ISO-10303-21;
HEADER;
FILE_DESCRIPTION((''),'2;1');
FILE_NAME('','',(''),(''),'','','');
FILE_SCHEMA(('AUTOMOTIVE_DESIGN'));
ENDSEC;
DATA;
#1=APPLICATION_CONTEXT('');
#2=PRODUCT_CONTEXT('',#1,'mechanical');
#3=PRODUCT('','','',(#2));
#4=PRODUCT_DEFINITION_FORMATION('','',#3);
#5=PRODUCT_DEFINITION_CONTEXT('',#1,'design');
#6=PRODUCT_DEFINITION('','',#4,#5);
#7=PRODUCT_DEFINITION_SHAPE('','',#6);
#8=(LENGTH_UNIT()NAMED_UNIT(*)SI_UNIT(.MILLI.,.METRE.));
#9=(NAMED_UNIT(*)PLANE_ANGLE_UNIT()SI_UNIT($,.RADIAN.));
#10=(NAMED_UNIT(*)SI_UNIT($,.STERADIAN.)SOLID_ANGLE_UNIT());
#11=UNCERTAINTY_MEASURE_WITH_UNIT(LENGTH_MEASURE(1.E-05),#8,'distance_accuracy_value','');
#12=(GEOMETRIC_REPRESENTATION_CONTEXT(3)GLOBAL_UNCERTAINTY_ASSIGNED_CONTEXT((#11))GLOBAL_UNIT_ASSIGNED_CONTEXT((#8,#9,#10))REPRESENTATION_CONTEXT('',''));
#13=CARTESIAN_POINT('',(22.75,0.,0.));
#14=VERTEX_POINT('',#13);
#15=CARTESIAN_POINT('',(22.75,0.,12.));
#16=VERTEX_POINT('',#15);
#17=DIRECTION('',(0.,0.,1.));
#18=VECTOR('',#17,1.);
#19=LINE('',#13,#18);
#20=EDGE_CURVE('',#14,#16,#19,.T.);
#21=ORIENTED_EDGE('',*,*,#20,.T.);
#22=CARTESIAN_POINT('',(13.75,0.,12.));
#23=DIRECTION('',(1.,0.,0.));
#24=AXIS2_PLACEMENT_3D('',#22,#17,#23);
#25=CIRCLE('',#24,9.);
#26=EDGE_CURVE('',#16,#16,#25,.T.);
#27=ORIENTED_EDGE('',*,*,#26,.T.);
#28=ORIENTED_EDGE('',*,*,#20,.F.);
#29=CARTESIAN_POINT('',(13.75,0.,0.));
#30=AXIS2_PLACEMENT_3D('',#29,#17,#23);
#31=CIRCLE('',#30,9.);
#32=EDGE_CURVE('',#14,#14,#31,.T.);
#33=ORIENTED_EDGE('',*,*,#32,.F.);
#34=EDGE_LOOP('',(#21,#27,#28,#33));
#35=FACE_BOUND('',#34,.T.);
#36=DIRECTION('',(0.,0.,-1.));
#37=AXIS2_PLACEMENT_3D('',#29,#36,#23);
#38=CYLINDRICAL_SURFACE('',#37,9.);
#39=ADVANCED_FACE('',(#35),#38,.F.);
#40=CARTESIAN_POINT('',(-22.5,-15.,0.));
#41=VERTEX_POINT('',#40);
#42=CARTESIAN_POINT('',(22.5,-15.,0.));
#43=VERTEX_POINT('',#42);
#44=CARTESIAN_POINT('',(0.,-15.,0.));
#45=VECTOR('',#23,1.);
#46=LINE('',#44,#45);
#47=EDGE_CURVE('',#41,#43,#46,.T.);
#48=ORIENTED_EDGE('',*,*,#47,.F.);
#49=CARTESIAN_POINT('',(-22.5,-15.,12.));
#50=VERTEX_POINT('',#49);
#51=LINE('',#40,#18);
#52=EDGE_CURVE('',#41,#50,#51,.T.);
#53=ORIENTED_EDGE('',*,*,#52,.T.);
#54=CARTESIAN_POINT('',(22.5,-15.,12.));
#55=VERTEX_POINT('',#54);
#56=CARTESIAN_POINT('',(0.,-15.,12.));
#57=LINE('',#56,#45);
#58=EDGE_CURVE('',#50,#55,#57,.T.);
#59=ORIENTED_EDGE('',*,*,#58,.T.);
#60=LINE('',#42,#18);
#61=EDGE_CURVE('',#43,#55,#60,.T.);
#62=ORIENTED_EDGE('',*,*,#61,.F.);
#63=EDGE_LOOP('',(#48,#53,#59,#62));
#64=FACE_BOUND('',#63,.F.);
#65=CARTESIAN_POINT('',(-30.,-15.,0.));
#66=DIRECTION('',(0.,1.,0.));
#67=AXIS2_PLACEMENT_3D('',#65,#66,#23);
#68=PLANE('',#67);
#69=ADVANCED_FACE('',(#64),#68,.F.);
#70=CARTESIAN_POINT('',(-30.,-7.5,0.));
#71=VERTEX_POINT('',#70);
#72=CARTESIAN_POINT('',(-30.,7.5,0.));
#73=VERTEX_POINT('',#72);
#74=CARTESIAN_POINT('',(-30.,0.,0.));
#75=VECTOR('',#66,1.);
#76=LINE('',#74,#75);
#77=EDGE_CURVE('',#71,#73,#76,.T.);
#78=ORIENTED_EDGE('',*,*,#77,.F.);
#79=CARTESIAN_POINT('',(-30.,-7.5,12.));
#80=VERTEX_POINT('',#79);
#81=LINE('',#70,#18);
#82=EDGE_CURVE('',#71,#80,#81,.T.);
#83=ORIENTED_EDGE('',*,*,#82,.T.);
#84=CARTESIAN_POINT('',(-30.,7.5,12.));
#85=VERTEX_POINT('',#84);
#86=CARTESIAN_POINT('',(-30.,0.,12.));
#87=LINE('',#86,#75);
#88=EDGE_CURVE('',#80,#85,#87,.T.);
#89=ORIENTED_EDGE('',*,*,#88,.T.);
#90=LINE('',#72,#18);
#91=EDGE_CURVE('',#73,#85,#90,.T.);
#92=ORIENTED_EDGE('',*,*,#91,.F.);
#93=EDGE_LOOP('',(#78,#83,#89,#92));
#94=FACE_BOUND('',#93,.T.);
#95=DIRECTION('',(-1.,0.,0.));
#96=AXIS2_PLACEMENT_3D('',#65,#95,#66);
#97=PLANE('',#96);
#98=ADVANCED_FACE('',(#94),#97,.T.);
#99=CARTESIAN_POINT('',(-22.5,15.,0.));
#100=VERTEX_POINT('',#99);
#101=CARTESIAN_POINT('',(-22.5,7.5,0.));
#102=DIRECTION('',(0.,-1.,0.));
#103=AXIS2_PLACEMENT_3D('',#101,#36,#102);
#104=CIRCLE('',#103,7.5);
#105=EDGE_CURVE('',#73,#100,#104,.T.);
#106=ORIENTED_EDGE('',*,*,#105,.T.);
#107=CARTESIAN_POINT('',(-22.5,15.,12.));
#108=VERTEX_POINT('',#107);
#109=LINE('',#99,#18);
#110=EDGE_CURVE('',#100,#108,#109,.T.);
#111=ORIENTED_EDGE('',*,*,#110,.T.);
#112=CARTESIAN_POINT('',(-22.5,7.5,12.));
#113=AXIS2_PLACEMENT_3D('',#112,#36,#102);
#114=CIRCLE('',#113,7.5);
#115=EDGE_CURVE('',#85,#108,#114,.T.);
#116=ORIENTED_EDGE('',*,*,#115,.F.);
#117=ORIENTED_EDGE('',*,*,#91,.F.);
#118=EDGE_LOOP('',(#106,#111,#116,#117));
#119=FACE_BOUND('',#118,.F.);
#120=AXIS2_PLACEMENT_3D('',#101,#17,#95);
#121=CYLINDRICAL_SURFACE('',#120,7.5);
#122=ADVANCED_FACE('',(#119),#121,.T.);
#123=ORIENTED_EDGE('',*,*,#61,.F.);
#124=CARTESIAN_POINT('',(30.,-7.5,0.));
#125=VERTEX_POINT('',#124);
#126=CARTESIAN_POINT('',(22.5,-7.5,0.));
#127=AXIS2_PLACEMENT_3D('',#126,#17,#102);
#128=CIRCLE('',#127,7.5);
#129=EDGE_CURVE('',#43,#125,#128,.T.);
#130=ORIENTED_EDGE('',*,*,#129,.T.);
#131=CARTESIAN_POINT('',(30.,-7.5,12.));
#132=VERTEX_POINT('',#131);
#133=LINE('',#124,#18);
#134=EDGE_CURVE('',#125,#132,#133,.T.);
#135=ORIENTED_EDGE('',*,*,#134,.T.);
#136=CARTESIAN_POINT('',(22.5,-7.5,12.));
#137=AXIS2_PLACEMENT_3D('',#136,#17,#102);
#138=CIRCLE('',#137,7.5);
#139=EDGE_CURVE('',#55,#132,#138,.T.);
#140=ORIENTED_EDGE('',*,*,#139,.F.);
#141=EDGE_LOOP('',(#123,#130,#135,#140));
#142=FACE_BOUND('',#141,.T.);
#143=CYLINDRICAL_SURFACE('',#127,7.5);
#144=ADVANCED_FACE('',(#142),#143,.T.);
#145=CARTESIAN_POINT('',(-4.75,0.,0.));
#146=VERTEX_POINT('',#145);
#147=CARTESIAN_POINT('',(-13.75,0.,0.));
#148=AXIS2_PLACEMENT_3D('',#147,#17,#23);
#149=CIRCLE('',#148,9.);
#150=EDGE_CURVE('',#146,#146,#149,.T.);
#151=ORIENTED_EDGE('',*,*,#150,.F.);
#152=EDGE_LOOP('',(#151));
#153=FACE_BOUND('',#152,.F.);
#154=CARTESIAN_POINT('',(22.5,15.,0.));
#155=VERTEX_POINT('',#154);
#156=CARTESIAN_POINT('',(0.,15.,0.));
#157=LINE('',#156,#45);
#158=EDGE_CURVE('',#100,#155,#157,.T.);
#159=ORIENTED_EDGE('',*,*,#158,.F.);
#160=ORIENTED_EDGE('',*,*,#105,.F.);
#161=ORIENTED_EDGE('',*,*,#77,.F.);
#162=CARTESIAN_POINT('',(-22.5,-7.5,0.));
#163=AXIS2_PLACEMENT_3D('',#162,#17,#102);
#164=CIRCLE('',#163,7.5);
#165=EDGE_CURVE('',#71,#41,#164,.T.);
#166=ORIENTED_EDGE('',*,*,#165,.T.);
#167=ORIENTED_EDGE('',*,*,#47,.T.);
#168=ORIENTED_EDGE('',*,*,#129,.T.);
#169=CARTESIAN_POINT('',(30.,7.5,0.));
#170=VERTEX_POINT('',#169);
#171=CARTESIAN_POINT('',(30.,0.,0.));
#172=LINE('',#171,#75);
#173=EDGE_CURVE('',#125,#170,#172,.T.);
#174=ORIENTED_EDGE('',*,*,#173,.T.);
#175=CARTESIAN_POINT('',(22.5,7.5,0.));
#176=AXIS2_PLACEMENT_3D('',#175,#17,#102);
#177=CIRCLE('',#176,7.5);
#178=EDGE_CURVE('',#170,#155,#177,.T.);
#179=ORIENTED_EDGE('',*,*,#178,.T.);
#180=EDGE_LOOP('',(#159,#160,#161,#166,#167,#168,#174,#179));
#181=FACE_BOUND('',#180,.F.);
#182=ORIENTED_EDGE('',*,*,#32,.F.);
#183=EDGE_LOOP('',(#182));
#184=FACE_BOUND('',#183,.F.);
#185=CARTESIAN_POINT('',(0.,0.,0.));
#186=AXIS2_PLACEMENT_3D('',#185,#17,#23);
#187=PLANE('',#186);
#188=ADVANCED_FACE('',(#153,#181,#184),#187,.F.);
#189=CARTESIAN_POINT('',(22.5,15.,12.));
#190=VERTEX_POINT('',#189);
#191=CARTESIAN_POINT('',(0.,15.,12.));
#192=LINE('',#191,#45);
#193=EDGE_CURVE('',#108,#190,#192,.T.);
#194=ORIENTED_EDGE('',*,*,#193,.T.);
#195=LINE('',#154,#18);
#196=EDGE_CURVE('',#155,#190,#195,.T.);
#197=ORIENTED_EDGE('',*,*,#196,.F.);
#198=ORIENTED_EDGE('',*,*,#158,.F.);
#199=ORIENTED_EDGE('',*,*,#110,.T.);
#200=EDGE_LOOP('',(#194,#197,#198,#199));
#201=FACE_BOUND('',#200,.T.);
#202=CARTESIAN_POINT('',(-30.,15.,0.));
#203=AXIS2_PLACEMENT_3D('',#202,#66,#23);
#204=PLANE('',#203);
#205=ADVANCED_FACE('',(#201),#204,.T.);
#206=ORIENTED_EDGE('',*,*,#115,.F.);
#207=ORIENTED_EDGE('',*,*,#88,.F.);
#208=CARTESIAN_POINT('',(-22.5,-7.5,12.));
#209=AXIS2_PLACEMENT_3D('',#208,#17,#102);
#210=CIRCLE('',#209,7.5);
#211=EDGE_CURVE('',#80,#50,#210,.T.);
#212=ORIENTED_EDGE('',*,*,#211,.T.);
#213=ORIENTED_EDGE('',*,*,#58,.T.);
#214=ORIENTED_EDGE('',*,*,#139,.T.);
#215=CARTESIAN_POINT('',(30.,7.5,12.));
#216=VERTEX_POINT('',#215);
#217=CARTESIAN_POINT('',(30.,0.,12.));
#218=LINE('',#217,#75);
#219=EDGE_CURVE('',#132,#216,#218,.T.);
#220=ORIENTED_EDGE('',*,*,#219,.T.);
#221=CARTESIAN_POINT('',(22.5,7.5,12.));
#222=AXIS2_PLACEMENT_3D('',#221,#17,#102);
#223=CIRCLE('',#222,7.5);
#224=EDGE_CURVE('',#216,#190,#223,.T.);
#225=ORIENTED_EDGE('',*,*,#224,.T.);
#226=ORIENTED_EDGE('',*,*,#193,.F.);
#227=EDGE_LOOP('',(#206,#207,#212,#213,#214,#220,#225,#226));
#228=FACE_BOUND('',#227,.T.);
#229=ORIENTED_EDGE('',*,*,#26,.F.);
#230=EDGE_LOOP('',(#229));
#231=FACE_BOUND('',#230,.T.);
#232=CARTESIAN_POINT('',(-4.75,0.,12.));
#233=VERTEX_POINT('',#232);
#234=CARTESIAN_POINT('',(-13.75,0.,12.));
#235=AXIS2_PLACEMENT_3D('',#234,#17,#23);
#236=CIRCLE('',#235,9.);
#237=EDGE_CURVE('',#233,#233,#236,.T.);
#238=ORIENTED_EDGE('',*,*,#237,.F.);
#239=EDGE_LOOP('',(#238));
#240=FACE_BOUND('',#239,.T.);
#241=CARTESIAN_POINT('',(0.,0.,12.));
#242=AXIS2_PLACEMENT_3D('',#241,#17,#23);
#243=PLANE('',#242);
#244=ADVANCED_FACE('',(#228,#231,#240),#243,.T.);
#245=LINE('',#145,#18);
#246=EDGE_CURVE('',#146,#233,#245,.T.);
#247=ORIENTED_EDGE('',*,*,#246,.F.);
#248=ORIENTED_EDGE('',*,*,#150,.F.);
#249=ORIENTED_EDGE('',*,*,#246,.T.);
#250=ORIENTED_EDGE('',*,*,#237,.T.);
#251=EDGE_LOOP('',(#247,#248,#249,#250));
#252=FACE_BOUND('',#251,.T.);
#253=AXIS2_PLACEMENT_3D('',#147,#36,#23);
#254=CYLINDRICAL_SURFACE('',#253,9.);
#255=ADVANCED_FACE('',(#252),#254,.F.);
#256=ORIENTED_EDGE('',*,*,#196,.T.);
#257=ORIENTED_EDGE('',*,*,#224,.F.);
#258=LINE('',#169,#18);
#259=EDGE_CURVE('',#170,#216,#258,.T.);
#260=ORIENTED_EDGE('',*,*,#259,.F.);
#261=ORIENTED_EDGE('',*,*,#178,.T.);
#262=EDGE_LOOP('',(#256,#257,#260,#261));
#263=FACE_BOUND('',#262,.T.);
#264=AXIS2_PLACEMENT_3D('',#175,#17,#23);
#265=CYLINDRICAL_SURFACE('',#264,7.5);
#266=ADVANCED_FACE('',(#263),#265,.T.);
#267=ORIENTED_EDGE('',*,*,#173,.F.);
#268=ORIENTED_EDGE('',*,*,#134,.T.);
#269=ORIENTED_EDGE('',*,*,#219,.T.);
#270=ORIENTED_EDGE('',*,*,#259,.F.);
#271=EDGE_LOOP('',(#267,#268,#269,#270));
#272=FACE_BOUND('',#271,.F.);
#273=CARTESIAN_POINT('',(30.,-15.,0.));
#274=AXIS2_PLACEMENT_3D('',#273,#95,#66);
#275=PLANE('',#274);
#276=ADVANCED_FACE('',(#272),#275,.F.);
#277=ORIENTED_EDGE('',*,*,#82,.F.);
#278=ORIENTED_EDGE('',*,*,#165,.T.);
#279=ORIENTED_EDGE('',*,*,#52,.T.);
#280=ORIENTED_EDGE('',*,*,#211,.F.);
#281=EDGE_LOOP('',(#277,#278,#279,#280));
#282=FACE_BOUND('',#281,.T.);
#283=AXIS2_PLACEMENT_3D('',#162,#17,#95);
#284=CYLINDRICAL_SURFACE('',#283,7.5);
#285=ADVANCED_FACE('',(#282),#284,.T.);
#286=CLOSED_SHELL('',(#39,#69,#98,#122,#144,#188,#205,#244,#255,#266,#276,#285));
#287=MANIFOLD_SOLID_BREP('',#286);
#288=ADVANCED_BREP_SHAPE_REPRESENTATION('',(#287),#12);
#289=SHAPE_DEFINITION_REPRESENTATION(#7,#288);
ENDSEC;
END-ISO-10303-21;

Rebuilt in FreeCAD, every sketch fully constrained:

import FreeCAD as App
import Part
import Sketcher
Q = App.Units.Quantity


def edges_at(feature, points):
    """Names of the edges that pass closest to the given points."""
    edges = feature.Shape.Edges
    near = lambda p: min(range(len(edges)), key=lambda i: edges[i].distToShape(Part.Vertex(*p))[0])
    return sorted({f"Edge{near(p) + 1}" for p in points})

doc = App.newDocument("Part")
body = doc.addObject("PartDesign::Body", "Body")

sketch1 = body.newObject("Sketcher::SketchObject", "Sketch")
sketch1.AttachmentSupport = (doc.getObject("XY_Plane"), [""])
sketch1.MapMode = "FlatFace"
sketch1.addGeometry([
    Part.LineSegment(App.Vector(-30, 15, 0), App.Vector(-30, -15, 0)),
    Part.LineSegment(App.Vector(-30, -15, 0), App.Vector(30, -15, 0)),
    Part.LineSegment(App.Vector(30, -15, 0), App.Vector(30, 15, 0)),
    Part.LineSegment(App.Vector(30, 15, 0), App.Vector(-30, 15, 0)),
    Part.Circle(App.Vector(-14, 0, 0), App.Vector(0, 0, 1), 9),
    Part.Circle(App.Vector(14, 0, 0), App.Vector(0, 0, 1), 9),
], False)
sketch1.addConstraint([
    Sketcher.Constraint("Coincident", 0, 2, 1, 1),
    Sketcher.Constraint("Coincident", 1, 2, 2, 1),
    Sketcher.Constraint("Coincident", 2, 2, 3, 1),
    Sketcher.Constraint("Coincident", 3, 2, 0, 1),
    Sketcher.Constraint("Vertical", 0),
    Sketcher.Constraint("Horizontal", 1),
    Sketcher.Constraint("Vertical", 2),
    Sketcher.Constraint("Horizontal", 3),
    Sketcher.Constraint("Equal", 4, 5),
    Sketcher.Constraint("Symmetric", 4, 3, 5, 3, -1, 1),
    Sketcher.Constraint("Symmetric", 0, 2, 2, 2, -1, 1),
    Sketcher.Constraint("PointOnObject", 4, 3, -1),
    Sketcher.Constraint("Diameter", 4, Q("18 mm")),
    Sketcher.Constraint("DistanceX", 1, 1, 1, 2, Q("60 mm")),
    Sketcher.Constraint("DistanceY", 0, 2, 0, 1, Q("30 mm")),
    Sketcher.Constraint("DistanceX", 4, 3, 5, 3, Q("27.5 mm")),
])
pad1 = body.newObject("PartDesign::Pad", "Pad")
pad1.Profile = sketch1
pad1.Length = 12
doc.recompute()

fillet = body.newObject("PartDesign::Fillet", "Fillet")
fillet.Base = (pad1, edges_at(pad1, [(-30, -15, 6)]))
fillet.Radius = 7.5
doc.recompute()

fillet2 = body.newObject("PartDesign::Fillet", "Fillet001")
fillet2.Base = (fillet, edges_at(fillet, [(-30, 15, 6)]))
fillet2.Radius = 7.5
doc.recompute()

fillet3 = body.newObject("PartDesign::Fillet", "Fillet002")
fillet3.Base = (fillet2, edges_at(fillet2, [(30, -15, 6)]))
fillet3.Radius = 7.5
doc.recompute()

fillet4 = body.newObject("PartDesign::Fillet", "Fillet003")
fillet4.Base = (fillet3, edges_at(fillet3, [(30, 15, 6)]))
fillet4.Radius = 7.5

doc.recompute()
